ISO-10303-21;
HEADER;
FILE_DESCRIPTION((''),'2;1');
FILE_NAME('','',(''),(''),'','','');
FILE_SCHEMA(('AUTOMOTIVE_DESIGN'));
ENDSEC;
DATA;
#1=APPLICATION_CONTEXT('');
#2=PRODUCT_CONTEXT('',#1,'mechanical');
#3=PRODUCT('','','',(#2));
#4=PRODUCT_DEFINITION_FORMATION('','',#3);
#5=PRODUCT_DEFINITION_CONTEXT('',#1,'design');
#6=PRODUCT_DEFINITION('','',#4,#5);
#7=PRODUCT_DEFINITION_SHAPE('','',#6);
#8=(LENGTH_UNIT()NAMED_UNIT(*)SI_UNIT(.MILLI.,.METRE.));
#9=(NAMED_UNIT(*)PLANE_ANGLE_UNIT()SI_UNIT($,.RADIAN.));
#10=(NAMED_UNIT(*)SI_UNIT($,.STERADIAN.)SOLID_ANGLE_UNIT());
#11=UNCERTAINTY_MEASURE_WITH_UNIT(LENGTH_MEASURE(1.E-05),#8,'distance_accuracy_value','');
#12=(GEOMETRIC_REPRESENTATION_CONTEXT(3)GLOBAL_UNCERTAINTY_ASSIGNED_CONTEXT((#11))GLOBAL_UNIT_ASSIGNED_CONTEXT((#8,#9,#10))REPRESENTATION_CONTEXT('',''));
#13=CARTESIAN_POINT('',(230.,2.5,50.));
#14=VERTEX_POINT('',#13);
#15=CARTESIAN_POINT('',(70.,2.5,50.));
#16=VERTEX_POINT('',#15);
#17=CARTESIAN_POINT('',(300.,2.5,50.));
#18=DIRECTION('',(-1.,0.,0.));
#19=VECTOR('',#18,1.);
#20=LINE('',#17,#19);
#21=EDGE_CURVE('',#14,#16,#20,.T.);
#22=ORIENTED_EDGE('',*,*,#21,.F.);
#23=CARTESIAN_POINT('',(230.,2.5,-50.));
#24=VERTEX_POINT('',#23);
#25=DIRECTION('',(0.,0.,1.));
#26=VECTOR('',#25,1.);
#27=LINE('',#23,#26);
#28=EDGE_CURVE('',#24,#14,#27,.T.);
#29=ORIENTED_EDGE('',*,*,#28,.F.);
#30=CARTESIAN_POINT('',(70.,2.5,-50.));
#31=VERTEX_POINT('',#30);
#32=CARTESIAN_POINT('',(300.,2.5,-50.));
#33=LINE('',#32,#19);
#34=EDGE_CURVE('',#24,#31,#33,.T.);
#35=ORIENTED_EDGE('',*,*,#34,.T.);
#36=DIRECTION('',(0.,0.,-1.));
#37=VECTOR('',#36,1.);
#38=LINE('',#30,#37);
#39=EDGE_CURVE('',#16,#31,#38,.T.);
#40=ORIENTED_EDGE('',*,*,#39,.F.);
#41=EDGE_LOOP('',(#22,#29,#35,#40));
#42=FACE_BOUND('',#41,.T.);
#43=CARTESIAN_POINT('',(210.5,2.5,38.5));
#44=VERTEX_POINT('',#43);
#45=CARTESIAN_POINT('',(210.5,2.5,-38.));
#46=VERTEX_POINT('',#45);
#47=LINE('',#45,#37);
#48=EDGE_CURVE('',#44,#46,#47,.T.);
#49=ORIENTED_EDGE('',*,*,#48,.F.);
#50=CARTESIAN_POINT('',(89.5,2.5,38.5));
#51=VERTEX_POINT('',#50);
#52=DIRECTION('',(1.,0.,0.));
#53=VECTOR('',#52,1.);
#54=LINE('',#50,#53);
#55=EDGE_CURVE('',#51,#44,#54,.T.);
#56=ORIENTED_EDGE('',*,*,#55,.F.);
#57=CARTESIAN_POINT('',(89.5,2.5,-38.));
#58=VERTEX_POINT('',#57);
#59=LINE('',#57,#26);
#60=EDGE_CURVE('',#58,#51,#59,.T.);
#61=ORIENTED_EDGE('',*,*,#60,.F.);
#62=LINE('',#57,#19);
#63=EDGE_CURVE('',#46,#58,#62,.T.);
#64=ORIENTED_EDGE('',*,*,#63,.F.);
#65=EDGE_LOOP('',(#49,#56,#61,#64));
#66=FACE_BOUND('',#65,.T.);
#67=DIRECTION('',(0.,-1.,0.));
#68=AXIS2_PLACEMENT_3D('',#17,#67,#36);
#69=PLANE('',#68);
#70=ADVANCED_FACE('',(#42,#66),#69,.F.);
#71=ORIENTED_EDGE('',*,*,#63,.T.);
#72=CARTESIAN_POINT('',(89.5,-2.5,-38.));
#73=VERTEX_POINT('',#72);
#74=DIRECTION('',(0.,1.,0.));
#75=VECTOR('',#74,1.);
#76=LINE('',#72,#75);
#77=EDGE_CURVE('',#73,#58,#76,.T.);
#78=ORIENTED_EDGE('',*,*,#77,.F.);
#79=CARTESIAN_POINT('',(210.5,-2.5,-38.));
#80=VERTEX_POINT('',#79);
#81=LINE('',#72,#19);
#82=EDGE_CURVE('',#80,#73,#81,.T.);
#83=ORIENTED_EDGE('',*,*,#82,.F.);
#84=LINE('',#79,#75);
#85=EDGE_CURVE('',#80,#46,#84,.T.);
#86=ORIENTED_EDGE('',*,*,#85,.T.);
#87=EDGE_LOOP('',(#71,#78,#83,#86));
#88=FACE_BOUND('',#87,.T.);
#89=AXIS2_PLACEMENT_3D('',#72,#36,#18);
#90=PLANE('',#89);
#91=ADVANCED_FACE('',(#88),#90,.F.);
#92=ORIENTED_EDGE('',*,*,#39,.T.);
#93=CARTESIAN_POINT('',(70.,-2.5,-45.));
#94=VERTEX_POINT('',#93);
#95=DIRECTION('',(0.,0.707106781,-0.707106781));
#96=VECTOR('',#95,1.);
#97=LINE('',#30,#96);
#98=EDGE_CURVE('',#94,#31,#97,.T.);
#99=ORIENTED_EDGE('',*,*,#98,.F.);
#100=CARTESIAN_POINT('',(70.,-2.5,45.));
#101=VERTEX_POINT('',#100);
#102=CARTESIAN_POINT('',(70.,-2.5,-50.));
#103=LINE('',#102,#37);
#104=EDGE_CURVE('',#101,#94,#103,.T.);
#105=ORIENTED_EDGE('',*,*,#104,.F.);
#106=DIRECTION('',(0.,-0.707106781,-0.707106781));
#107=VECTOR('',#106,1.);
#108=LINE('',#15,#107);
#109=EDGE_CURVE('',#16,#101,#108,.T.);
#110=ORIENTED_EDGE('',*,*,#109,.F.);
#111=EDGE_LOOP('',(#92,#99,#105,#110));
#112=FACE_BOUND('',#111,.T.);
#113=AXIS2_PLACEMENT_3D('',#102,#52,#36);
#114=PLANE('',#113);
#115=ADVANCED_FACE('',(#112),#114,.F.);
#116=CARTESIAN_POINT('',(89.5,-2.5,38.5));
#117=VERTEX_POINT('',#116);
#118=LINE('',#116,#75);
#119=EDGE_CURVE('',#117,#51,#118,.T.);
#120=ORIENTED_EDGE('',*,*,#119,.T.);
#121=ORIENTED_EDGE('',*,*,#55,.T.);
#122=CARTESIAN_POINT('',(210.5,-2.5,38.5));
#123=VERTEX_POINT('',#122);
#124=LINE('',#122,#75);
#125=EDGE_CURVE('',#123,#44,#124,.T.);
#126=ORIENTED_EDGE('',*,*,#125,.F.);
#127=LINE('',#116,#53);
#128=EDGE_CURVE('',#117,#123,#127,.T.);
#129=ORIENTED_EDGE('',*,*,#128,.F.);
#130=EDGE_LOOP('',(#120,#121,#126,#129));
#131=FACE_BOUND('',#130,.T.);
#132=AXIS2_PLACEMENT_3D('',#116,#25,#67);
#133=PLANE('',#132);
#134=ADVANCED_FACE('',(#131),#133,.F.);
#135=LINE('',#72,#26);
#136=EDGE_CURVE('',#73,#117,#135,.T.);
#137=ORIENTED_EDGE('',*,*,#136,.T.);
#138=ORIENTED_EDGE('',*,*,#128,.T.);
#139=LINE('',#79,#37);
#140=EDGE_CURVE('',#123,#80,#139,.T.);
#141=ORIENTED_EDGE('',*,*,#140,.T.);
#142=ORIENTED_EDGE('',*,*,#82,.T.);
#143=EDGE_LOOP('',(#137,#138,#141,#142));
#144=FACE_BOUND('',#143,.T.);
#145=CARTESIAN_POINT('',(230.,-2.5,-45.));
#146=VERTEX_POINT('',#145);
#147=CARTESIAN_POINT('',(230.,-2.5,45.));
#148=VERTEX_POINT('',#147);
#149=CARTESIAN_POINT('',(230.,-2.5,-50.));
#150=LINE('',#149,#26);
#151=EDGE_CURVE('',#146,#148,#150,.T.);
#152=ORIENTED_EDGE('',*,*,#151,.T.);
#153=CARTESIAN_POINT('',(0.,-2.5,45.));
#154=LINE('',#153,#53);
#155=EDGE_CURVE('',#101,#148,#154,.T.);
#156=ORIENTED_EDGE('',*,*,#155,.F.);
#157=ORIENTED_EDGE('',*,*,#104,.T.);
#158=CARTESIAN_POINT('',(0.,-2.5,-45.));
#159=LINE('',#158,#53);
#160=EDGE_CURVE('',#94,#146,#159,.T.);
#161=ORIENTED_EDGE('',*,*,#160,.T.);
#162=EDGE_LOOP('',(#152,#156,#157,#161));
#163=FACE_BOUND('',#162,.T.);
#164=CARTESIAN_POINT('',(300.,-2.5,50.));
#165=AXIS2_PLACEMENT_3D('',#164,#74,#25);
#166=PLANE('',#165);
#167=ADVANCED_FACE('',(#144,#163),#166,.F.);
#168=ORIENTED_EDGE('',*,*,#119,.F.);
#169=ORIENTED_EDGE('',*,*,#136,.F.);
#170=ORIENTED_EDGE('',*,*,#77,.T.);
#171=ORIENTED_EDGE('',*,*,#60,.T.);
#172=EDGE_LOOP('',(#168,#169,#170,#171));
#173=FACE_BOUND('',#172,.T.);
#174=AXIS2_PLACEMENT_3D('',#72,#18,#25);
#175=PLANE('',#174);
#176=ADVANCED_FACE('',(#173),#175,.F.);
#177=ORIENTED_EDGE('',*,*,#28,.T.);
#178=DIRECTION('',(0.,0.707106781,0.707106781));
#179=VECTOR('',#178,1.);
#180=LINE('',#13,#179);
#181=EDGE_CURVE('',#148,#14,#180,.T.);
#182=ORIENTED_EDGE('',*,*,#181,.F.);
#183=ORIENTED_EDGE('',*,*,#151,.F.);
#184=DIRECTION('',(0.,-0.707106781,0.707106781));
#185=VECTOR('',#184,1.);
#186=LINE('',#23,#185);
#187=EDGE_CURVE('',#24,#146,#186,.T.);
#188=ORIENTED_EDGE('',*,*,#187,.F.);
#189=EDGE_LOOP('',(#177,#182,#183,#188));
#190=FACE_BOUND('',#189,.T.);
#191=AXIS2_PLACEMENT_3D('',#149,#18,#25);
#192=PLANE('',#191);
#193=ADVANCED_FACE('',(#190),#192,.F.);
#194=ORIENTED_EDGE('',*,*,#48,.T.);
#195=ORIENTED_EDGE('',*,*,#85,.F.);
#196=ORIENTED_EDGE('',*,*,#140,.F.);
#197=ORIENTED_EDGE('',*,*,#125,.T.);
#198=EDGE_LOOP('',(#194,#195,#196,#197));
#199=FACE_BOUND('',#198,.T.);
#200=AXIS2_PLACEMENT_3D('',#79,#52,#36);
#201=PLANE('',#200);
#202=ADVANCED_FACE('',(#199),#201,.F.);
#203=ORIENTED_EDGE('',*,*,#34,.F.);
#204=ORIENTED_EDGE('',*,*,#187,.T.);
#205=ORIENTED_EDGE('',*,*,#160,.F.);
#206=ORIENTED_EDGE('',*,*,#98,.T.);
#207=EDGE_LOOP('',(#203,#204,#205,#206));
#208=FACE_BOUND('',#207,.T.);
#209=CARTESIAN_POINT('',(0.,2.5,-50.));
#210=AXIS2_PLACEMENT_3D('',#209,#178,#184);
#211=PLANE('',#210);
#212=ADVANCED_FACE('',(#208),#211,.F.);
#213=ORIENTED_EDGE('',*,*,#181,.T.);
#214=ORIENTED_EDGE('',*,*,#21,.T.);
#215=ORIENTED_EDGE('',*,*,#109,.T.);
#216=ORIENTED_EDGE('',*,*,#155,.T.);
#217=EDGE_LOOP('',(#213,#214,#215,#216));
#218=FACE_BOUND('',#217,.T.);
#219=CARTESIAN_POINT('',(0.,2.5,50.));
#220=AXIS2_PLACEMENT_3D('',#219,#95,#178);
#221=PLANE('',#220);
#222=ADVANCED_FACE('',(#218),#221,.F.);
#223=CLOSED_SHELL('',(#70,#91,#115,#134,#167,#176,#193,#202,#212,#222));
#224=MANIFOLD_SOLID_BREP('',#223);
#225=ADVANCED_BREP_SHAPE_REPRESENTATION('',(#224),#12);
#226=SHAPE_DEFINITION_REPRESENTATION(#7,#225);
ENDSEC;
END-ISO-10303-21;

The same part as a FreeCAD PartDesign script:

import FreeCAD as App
import Part
import Sketcher

V = App.Vector
Q = App.Units.Quantity

doc = App.newDocument("Part")
body = doc.addObject("PartDesign::Body", "Body")

sketch1 = doc.addObject("Sketcher::SketchObject", "Sketch")
body.addObject(sketch1)
sketch1.AttachmentSupport = (doc.YZ_Plane, [""])
sketch1.MapMode = "FlatFace"
sketch1.addGeometry(Part.LineSegment(V(2, 50, 0), V(-2, 50, 0)), False)
sketch1.addGeometry(Part.LineSegment(V(-2, 50, 0), V(-2, -50, 0)), False)
sketch1.addGeometry(Part.LineSegment(V(-2, -50, 0), V(2, -50, 0)), False)
sketch1.addGeometry(Part.LineSegment(V(2, -50, 0), V(2, 50, 0)), False)
sketch1.addConstraint(Sketcher.Constraint("Coincident", 0, 2, 1, 1))
sketch1.addConstraint(Sketcher.Constraint("Coincident", 1, 2, 2, 1))
sketch1.addConstraint(Sketcher.Constraint("Coincident", 2, 2, 3, 1))
sketch1.addConstraint(Sketcher.Constraint("Coincident", 3, 2, 0, 1))
sketch1.addConstraint(Sketcher.Constraint("Horizontal", 0))
sketch1.addConstraint(Sketcher.Constraint("Vertical", 1))
sketch1.addConstraint(Sketcher.Constraint("Horizontal", 2))
sketch1.addConstraint(Sketcher.Constraint("Vertical", 3))
sketch1.addConstraint(Sketcher.Constraint("Symmetric", 0, 2, 2, 2, -1, 1))
sketch1.addConstraint(Sketcher.Constraint("DistanceX", 0, 2, 0, 1, Q("5 mm")))
sketch1.addConstraint(Sketcher.Constraint("DistanceY", 1, 2, 1, 1, Q("100 mm")))
pad1 = doc.addObject("PartDesign::Pad", "Pad")
body.addObject(pad1)
pad1.Profile = sketch1
pad1.Length = 300

sketch2 = doc.addObject("Sketcher::SketchObject", "Sketch001")
body.addObject(sketch2)
sketch2.AttachmentSupport = (doc.YZ_Plane, [""])
sketch2.MapMode = "FlatFace"
sketch2.AttachmentOffset = App.Placement(V(0, 0, 300), App.Rotation())
sketch2.addGeometry(Part.LineSegment(V(-2, 45, 0), V(2, 50, 0)), False)
sketch2.addGeometry(Part.LineSegment(V(2, 50, 0), V(-2, 50, 0)), False)
sketch2.addGeometry(Part.LineSegment(V(-2, 50, 0), V(-2, 45, 0)), False)
sketch2.addConstraint(Sketcher.Constraint("Coincident", 0, 2, 1, 1))
sketch2.addConstraint(Sketcher.Constraint("Coincident", 1, 2, 2, 1))
sketch2.addConstraint(Sketcher.Constraint("Coincident", 2, 2, 0, 1))
sketch2.addConstraint(Sketcher.Constraint("Horizontal", 1))
sketch2.addConstraint(Sketcher.Constraint("Vertical", 2))
sketch2.addConstraint(Sketcher.Constraint("Equal", 1, 2))
sketch2.addConstraint(Sketcher.Constraint("DistanceX", 1, 2, 1, 1, Q("5 mm")))
sketch2.addConstraint(Sketcher.Constraint("DistanceY", -1, 1, 0, 2, Q("50 mm")))
sketch2.addConstraint(Sketcher.Constraint("DistanceX", -1, 1, 0, 2, Q("2.5 mm")))
pocket1 = doc.addObject("PartDesign::Pocket", "Pocket")
body.addObject(pocket1)
pocket1.Profile = sketch2
pocket1.Length = 300

sketch3 = doc.addObject("Sketcher::SketchObject", "Sketch002")
body.addObject(sketch3)
sketch3.AttachmentSupport = (doc.XZ_Plane, [""])
sketch3.MapMode = "FlatFace"
sketch3.AttachmentOffset = App.Placement(V(0, 0, -2.5), App.Rotation())
sketch3.addGeometry(Part.LineSegment(V(90, -38, 0), V(90, 38, 0)), False)
sketch3.addGeometry(Part.LineSegment(V(90, 38, 0), V(210, 38, 0)), False)
sketch3.addGeometry(Part.LineSegment(V(210, 38, 0), V(210, -38, 0)), False)
sketch3.addGeometry(Part.LineSegment(V(210, -38, 0), V(90, -38, 0)), False)
sketch3.addConstraint(Sketcher.Constraint("Coincident", 0, 2, 1, 1))
sketch3.addConstraint(Sketcher.Constraint("Coincident", 1, 2, 2, 1))
sketch3.addConstraint(Sketcher.Constraint("Coincident", 2, 2, 3, 1))
sketch3.addConstraint(Sketcher.Constraint("Coincident", 3, 2, 0, 1))
sketch3.addConstraint(Sketcher.Constraint("Vertical", 0))
sketch3.addConstraint(Sketcher.Constraint("Horizontal", 1))
sketch3.addConstraint(Sketcher.Constraint("Vertical", 2))
sketch3.addConstraint(Sketcher.Constraint("Horizontal", 3))
sketch3.addConstraint(Sketcher.Constraint("DistanceX", 1, 1, 1, 2, Q("121 mm")))
sketch3.addConstraint(Sketcher.Constraint("DistanceY", 0, 1, 0, 2, Q("76.5 mm")))
sketch3.addConstraint(Sketcher.Constraint("DistanceY", 2, 2, -1, 1, Q("38 mm")))
sketch3.addConstraint(Sketcher.Constraint("DistanceX", -1, 1, 0, 2, Q("89.5 mm")))
pocket2 = doc.addObject("PartDesign::Pocket", "Pocket001")
body.addObject(pocket2)
pocket2.Profile = sketch3
pocket2.Length = 5
pocket2.Reversed = True

sketch4 = doc.addObject("Sketcher::SketchObject", "Sketch003")
body.addObject(sketch4)
sketch4.AttachmentSupport = (doc.YZ_Plane, [""])
sketch4.MapMode = "FlatFace"
sketch4.AttachmentOffset = App.Placement(V(0, 0, 300), App.Rotation())
sketch4.addGeometry(Part.LineSegment(V(2, -50, 0), V(-2, -45, 0)), False)
sketch4.addGeometry(Part.LineSegment(V(-2, -45, 0), V(-2, -50, 0)), False)
sketch4.addGeometry(Part.LineSegment(V(-2, -50, 0), V(2, -50, 0)), False)
sketch4.addConstraint(Sketcher.Constraint("Coincident", 0, 2, 1, 1))
sketch4.addConstraint(Sketcher.Constraint("Coincident", 1, 2, 2, 1))
sketch4.addConstraint(Sketcher.Constraint("Coincident", 2, 2, 0, 1))
sketch4.addConstraint(Sketcher.Constraint("Vertical", 1))
sketch4.addConstraint(Sketcher.Constraint("Horizontal", 2))
sketch4.addConstraint(Sketcher.Constraint("Equal", 2, 1))
sketch4.addConstraint(Sketcher.Constraint("DistanceX", 2, 1, 2, 2, Q("5 mm")))
sketch4.addConstraint(Sketcher.Constraint("DistanceY", 0, 2, -1, 1, Q("45 mm")))
sketch4.addConstraint(Sketcher.Constraint("DistanceX", 0, 2, -1, 1, Q("2.5 mm")))
pocket3 = doc.addObject("PartDesign::Pocket", "Pocket002")
body.addObject(pocket3)
pocket3.Profile = sketch4
pocket3.Length = 300

sketch5 = doc.addObject("Sketcher::SketchObject", "Sketch004")
body.addObject(sketch5)
sketch5.AttachmentSupport = (doc.XZ_Plane, [""])
sketch5.MapMode = "FlatFace"
sketch5.AttachmentOffset = App.Placement(V(0, 0, -2.5), App.Rotation())
sketch5.addGeometry(Part.LineSegment(V(0, -50, 0), V(0, 50, 0)), False)
sketch5.addGeometry(Part.LineSegment(V(0, 50, 0), V(70, 50, 0)), False)
sketch5.addGeometry(Part.LineSegment(V(70, 50, 0), V(70, -50, 0)), False)
sketch5.addGeometry(Part.LineSegment(V(70, -50, 0), V(0, -50, 0)), False)
sketch5.addGeometry(Part.LineSegment(V(230, -50, 0), V(230, 50, 0)), False)
sketch5.addGeometry(Part.LineSegment(V(230, 50, 0), V(300, 50, 0)), False)
sketch5.addGeometry(Part.LineSegment(V(300, 50, 0), V(300, -50, 0)), False)
sketch5.addGeometry(Part.LineSegment(V(300, -50, 0), V(230, -50, 0)), False)
sketch5.addConstraint(Sketcher.Constraint("Coincident", 0, 2, 1, 1))
sketch5.addConstraint(Sketcher.Constraint("Coincident", 1, 2, 2, 1))
sketch5.addConstraint(Sketcher.Constraint("Coincident", 2, 2, 3, 1))
sketch5.addConstraint(Sketcher.Constraint("Coincident", 3, 2, 0, 1))
sketch5.addConstraint(Sketcher.Constraint("Coincident", 4, 2, 5, 1))
sketch5.addConstraint(Sketcher.Constraint("Coincident", 5, 2, 6, 1))
sketch5.addConstraint(Sketcher.Constraint("Coincident", 6, 2, 7, 1))
sketch5.addConstraint(Sketcher.Constraint("Coincident", 7, 2, 4, 1))
sketch5.addConstraint(Sketcher.Constraint("Vertical", 0))
sketch5.addConstraint(Sketcher.Constraint("Horizontal", 1))
sketch5.addConstraint(Sketcher.Constraint("Vertical", 2))
sketch5.addConstraint(Sketcher.Constraint("Horizontal", 3))
sketch5.addConstraint(Sketcher.Constraint("Vertical", 4))
sketch5.addConstraint(Sketcher.Constraint("Horizontal", 5))
sketch5.addConstraint(Sketcher.Constraint("Vertical", 6))
sketch5.addConstraint(Sketcher.Constraint("Horizontal", 7))
sketch5.addConstraint(Sketcher.Constraint("Symmetric", 0, 2, 3, 2, -1, 1))
sketch5.addConstraint(Sketcher.Constraint("Horizontal", 1, 2, 4, 2))
sketch5.addConstraint(Sketcher.Constraint("Horizontal", 3, 2, 6, 2))
sketch5.addConstraint(Sketcher.Constraint("Equal", 3, 5))
sketch5.addConstraint(Sketcher.Constraint("DistanceX", 1, 1, 1, 2, Q("70 mm")))
sketch5.addConstraint(Sketcher.Constraint("DistanceY", 0, 1, 0, 2, Q("100 mm")))
sketch5.addConstraint(Sketcher.Constraint("DistanceX", -1, 1, 4, 2, Q("230 mm")))
pocket4 = doc.addObject("PartDesign::Pocket", "Pocket003")
body.addObject(pocket4)
pocket4.Profile = sketch5
pocket4.Length = 5
pocket4.Reversed = True

doc.recompute()
